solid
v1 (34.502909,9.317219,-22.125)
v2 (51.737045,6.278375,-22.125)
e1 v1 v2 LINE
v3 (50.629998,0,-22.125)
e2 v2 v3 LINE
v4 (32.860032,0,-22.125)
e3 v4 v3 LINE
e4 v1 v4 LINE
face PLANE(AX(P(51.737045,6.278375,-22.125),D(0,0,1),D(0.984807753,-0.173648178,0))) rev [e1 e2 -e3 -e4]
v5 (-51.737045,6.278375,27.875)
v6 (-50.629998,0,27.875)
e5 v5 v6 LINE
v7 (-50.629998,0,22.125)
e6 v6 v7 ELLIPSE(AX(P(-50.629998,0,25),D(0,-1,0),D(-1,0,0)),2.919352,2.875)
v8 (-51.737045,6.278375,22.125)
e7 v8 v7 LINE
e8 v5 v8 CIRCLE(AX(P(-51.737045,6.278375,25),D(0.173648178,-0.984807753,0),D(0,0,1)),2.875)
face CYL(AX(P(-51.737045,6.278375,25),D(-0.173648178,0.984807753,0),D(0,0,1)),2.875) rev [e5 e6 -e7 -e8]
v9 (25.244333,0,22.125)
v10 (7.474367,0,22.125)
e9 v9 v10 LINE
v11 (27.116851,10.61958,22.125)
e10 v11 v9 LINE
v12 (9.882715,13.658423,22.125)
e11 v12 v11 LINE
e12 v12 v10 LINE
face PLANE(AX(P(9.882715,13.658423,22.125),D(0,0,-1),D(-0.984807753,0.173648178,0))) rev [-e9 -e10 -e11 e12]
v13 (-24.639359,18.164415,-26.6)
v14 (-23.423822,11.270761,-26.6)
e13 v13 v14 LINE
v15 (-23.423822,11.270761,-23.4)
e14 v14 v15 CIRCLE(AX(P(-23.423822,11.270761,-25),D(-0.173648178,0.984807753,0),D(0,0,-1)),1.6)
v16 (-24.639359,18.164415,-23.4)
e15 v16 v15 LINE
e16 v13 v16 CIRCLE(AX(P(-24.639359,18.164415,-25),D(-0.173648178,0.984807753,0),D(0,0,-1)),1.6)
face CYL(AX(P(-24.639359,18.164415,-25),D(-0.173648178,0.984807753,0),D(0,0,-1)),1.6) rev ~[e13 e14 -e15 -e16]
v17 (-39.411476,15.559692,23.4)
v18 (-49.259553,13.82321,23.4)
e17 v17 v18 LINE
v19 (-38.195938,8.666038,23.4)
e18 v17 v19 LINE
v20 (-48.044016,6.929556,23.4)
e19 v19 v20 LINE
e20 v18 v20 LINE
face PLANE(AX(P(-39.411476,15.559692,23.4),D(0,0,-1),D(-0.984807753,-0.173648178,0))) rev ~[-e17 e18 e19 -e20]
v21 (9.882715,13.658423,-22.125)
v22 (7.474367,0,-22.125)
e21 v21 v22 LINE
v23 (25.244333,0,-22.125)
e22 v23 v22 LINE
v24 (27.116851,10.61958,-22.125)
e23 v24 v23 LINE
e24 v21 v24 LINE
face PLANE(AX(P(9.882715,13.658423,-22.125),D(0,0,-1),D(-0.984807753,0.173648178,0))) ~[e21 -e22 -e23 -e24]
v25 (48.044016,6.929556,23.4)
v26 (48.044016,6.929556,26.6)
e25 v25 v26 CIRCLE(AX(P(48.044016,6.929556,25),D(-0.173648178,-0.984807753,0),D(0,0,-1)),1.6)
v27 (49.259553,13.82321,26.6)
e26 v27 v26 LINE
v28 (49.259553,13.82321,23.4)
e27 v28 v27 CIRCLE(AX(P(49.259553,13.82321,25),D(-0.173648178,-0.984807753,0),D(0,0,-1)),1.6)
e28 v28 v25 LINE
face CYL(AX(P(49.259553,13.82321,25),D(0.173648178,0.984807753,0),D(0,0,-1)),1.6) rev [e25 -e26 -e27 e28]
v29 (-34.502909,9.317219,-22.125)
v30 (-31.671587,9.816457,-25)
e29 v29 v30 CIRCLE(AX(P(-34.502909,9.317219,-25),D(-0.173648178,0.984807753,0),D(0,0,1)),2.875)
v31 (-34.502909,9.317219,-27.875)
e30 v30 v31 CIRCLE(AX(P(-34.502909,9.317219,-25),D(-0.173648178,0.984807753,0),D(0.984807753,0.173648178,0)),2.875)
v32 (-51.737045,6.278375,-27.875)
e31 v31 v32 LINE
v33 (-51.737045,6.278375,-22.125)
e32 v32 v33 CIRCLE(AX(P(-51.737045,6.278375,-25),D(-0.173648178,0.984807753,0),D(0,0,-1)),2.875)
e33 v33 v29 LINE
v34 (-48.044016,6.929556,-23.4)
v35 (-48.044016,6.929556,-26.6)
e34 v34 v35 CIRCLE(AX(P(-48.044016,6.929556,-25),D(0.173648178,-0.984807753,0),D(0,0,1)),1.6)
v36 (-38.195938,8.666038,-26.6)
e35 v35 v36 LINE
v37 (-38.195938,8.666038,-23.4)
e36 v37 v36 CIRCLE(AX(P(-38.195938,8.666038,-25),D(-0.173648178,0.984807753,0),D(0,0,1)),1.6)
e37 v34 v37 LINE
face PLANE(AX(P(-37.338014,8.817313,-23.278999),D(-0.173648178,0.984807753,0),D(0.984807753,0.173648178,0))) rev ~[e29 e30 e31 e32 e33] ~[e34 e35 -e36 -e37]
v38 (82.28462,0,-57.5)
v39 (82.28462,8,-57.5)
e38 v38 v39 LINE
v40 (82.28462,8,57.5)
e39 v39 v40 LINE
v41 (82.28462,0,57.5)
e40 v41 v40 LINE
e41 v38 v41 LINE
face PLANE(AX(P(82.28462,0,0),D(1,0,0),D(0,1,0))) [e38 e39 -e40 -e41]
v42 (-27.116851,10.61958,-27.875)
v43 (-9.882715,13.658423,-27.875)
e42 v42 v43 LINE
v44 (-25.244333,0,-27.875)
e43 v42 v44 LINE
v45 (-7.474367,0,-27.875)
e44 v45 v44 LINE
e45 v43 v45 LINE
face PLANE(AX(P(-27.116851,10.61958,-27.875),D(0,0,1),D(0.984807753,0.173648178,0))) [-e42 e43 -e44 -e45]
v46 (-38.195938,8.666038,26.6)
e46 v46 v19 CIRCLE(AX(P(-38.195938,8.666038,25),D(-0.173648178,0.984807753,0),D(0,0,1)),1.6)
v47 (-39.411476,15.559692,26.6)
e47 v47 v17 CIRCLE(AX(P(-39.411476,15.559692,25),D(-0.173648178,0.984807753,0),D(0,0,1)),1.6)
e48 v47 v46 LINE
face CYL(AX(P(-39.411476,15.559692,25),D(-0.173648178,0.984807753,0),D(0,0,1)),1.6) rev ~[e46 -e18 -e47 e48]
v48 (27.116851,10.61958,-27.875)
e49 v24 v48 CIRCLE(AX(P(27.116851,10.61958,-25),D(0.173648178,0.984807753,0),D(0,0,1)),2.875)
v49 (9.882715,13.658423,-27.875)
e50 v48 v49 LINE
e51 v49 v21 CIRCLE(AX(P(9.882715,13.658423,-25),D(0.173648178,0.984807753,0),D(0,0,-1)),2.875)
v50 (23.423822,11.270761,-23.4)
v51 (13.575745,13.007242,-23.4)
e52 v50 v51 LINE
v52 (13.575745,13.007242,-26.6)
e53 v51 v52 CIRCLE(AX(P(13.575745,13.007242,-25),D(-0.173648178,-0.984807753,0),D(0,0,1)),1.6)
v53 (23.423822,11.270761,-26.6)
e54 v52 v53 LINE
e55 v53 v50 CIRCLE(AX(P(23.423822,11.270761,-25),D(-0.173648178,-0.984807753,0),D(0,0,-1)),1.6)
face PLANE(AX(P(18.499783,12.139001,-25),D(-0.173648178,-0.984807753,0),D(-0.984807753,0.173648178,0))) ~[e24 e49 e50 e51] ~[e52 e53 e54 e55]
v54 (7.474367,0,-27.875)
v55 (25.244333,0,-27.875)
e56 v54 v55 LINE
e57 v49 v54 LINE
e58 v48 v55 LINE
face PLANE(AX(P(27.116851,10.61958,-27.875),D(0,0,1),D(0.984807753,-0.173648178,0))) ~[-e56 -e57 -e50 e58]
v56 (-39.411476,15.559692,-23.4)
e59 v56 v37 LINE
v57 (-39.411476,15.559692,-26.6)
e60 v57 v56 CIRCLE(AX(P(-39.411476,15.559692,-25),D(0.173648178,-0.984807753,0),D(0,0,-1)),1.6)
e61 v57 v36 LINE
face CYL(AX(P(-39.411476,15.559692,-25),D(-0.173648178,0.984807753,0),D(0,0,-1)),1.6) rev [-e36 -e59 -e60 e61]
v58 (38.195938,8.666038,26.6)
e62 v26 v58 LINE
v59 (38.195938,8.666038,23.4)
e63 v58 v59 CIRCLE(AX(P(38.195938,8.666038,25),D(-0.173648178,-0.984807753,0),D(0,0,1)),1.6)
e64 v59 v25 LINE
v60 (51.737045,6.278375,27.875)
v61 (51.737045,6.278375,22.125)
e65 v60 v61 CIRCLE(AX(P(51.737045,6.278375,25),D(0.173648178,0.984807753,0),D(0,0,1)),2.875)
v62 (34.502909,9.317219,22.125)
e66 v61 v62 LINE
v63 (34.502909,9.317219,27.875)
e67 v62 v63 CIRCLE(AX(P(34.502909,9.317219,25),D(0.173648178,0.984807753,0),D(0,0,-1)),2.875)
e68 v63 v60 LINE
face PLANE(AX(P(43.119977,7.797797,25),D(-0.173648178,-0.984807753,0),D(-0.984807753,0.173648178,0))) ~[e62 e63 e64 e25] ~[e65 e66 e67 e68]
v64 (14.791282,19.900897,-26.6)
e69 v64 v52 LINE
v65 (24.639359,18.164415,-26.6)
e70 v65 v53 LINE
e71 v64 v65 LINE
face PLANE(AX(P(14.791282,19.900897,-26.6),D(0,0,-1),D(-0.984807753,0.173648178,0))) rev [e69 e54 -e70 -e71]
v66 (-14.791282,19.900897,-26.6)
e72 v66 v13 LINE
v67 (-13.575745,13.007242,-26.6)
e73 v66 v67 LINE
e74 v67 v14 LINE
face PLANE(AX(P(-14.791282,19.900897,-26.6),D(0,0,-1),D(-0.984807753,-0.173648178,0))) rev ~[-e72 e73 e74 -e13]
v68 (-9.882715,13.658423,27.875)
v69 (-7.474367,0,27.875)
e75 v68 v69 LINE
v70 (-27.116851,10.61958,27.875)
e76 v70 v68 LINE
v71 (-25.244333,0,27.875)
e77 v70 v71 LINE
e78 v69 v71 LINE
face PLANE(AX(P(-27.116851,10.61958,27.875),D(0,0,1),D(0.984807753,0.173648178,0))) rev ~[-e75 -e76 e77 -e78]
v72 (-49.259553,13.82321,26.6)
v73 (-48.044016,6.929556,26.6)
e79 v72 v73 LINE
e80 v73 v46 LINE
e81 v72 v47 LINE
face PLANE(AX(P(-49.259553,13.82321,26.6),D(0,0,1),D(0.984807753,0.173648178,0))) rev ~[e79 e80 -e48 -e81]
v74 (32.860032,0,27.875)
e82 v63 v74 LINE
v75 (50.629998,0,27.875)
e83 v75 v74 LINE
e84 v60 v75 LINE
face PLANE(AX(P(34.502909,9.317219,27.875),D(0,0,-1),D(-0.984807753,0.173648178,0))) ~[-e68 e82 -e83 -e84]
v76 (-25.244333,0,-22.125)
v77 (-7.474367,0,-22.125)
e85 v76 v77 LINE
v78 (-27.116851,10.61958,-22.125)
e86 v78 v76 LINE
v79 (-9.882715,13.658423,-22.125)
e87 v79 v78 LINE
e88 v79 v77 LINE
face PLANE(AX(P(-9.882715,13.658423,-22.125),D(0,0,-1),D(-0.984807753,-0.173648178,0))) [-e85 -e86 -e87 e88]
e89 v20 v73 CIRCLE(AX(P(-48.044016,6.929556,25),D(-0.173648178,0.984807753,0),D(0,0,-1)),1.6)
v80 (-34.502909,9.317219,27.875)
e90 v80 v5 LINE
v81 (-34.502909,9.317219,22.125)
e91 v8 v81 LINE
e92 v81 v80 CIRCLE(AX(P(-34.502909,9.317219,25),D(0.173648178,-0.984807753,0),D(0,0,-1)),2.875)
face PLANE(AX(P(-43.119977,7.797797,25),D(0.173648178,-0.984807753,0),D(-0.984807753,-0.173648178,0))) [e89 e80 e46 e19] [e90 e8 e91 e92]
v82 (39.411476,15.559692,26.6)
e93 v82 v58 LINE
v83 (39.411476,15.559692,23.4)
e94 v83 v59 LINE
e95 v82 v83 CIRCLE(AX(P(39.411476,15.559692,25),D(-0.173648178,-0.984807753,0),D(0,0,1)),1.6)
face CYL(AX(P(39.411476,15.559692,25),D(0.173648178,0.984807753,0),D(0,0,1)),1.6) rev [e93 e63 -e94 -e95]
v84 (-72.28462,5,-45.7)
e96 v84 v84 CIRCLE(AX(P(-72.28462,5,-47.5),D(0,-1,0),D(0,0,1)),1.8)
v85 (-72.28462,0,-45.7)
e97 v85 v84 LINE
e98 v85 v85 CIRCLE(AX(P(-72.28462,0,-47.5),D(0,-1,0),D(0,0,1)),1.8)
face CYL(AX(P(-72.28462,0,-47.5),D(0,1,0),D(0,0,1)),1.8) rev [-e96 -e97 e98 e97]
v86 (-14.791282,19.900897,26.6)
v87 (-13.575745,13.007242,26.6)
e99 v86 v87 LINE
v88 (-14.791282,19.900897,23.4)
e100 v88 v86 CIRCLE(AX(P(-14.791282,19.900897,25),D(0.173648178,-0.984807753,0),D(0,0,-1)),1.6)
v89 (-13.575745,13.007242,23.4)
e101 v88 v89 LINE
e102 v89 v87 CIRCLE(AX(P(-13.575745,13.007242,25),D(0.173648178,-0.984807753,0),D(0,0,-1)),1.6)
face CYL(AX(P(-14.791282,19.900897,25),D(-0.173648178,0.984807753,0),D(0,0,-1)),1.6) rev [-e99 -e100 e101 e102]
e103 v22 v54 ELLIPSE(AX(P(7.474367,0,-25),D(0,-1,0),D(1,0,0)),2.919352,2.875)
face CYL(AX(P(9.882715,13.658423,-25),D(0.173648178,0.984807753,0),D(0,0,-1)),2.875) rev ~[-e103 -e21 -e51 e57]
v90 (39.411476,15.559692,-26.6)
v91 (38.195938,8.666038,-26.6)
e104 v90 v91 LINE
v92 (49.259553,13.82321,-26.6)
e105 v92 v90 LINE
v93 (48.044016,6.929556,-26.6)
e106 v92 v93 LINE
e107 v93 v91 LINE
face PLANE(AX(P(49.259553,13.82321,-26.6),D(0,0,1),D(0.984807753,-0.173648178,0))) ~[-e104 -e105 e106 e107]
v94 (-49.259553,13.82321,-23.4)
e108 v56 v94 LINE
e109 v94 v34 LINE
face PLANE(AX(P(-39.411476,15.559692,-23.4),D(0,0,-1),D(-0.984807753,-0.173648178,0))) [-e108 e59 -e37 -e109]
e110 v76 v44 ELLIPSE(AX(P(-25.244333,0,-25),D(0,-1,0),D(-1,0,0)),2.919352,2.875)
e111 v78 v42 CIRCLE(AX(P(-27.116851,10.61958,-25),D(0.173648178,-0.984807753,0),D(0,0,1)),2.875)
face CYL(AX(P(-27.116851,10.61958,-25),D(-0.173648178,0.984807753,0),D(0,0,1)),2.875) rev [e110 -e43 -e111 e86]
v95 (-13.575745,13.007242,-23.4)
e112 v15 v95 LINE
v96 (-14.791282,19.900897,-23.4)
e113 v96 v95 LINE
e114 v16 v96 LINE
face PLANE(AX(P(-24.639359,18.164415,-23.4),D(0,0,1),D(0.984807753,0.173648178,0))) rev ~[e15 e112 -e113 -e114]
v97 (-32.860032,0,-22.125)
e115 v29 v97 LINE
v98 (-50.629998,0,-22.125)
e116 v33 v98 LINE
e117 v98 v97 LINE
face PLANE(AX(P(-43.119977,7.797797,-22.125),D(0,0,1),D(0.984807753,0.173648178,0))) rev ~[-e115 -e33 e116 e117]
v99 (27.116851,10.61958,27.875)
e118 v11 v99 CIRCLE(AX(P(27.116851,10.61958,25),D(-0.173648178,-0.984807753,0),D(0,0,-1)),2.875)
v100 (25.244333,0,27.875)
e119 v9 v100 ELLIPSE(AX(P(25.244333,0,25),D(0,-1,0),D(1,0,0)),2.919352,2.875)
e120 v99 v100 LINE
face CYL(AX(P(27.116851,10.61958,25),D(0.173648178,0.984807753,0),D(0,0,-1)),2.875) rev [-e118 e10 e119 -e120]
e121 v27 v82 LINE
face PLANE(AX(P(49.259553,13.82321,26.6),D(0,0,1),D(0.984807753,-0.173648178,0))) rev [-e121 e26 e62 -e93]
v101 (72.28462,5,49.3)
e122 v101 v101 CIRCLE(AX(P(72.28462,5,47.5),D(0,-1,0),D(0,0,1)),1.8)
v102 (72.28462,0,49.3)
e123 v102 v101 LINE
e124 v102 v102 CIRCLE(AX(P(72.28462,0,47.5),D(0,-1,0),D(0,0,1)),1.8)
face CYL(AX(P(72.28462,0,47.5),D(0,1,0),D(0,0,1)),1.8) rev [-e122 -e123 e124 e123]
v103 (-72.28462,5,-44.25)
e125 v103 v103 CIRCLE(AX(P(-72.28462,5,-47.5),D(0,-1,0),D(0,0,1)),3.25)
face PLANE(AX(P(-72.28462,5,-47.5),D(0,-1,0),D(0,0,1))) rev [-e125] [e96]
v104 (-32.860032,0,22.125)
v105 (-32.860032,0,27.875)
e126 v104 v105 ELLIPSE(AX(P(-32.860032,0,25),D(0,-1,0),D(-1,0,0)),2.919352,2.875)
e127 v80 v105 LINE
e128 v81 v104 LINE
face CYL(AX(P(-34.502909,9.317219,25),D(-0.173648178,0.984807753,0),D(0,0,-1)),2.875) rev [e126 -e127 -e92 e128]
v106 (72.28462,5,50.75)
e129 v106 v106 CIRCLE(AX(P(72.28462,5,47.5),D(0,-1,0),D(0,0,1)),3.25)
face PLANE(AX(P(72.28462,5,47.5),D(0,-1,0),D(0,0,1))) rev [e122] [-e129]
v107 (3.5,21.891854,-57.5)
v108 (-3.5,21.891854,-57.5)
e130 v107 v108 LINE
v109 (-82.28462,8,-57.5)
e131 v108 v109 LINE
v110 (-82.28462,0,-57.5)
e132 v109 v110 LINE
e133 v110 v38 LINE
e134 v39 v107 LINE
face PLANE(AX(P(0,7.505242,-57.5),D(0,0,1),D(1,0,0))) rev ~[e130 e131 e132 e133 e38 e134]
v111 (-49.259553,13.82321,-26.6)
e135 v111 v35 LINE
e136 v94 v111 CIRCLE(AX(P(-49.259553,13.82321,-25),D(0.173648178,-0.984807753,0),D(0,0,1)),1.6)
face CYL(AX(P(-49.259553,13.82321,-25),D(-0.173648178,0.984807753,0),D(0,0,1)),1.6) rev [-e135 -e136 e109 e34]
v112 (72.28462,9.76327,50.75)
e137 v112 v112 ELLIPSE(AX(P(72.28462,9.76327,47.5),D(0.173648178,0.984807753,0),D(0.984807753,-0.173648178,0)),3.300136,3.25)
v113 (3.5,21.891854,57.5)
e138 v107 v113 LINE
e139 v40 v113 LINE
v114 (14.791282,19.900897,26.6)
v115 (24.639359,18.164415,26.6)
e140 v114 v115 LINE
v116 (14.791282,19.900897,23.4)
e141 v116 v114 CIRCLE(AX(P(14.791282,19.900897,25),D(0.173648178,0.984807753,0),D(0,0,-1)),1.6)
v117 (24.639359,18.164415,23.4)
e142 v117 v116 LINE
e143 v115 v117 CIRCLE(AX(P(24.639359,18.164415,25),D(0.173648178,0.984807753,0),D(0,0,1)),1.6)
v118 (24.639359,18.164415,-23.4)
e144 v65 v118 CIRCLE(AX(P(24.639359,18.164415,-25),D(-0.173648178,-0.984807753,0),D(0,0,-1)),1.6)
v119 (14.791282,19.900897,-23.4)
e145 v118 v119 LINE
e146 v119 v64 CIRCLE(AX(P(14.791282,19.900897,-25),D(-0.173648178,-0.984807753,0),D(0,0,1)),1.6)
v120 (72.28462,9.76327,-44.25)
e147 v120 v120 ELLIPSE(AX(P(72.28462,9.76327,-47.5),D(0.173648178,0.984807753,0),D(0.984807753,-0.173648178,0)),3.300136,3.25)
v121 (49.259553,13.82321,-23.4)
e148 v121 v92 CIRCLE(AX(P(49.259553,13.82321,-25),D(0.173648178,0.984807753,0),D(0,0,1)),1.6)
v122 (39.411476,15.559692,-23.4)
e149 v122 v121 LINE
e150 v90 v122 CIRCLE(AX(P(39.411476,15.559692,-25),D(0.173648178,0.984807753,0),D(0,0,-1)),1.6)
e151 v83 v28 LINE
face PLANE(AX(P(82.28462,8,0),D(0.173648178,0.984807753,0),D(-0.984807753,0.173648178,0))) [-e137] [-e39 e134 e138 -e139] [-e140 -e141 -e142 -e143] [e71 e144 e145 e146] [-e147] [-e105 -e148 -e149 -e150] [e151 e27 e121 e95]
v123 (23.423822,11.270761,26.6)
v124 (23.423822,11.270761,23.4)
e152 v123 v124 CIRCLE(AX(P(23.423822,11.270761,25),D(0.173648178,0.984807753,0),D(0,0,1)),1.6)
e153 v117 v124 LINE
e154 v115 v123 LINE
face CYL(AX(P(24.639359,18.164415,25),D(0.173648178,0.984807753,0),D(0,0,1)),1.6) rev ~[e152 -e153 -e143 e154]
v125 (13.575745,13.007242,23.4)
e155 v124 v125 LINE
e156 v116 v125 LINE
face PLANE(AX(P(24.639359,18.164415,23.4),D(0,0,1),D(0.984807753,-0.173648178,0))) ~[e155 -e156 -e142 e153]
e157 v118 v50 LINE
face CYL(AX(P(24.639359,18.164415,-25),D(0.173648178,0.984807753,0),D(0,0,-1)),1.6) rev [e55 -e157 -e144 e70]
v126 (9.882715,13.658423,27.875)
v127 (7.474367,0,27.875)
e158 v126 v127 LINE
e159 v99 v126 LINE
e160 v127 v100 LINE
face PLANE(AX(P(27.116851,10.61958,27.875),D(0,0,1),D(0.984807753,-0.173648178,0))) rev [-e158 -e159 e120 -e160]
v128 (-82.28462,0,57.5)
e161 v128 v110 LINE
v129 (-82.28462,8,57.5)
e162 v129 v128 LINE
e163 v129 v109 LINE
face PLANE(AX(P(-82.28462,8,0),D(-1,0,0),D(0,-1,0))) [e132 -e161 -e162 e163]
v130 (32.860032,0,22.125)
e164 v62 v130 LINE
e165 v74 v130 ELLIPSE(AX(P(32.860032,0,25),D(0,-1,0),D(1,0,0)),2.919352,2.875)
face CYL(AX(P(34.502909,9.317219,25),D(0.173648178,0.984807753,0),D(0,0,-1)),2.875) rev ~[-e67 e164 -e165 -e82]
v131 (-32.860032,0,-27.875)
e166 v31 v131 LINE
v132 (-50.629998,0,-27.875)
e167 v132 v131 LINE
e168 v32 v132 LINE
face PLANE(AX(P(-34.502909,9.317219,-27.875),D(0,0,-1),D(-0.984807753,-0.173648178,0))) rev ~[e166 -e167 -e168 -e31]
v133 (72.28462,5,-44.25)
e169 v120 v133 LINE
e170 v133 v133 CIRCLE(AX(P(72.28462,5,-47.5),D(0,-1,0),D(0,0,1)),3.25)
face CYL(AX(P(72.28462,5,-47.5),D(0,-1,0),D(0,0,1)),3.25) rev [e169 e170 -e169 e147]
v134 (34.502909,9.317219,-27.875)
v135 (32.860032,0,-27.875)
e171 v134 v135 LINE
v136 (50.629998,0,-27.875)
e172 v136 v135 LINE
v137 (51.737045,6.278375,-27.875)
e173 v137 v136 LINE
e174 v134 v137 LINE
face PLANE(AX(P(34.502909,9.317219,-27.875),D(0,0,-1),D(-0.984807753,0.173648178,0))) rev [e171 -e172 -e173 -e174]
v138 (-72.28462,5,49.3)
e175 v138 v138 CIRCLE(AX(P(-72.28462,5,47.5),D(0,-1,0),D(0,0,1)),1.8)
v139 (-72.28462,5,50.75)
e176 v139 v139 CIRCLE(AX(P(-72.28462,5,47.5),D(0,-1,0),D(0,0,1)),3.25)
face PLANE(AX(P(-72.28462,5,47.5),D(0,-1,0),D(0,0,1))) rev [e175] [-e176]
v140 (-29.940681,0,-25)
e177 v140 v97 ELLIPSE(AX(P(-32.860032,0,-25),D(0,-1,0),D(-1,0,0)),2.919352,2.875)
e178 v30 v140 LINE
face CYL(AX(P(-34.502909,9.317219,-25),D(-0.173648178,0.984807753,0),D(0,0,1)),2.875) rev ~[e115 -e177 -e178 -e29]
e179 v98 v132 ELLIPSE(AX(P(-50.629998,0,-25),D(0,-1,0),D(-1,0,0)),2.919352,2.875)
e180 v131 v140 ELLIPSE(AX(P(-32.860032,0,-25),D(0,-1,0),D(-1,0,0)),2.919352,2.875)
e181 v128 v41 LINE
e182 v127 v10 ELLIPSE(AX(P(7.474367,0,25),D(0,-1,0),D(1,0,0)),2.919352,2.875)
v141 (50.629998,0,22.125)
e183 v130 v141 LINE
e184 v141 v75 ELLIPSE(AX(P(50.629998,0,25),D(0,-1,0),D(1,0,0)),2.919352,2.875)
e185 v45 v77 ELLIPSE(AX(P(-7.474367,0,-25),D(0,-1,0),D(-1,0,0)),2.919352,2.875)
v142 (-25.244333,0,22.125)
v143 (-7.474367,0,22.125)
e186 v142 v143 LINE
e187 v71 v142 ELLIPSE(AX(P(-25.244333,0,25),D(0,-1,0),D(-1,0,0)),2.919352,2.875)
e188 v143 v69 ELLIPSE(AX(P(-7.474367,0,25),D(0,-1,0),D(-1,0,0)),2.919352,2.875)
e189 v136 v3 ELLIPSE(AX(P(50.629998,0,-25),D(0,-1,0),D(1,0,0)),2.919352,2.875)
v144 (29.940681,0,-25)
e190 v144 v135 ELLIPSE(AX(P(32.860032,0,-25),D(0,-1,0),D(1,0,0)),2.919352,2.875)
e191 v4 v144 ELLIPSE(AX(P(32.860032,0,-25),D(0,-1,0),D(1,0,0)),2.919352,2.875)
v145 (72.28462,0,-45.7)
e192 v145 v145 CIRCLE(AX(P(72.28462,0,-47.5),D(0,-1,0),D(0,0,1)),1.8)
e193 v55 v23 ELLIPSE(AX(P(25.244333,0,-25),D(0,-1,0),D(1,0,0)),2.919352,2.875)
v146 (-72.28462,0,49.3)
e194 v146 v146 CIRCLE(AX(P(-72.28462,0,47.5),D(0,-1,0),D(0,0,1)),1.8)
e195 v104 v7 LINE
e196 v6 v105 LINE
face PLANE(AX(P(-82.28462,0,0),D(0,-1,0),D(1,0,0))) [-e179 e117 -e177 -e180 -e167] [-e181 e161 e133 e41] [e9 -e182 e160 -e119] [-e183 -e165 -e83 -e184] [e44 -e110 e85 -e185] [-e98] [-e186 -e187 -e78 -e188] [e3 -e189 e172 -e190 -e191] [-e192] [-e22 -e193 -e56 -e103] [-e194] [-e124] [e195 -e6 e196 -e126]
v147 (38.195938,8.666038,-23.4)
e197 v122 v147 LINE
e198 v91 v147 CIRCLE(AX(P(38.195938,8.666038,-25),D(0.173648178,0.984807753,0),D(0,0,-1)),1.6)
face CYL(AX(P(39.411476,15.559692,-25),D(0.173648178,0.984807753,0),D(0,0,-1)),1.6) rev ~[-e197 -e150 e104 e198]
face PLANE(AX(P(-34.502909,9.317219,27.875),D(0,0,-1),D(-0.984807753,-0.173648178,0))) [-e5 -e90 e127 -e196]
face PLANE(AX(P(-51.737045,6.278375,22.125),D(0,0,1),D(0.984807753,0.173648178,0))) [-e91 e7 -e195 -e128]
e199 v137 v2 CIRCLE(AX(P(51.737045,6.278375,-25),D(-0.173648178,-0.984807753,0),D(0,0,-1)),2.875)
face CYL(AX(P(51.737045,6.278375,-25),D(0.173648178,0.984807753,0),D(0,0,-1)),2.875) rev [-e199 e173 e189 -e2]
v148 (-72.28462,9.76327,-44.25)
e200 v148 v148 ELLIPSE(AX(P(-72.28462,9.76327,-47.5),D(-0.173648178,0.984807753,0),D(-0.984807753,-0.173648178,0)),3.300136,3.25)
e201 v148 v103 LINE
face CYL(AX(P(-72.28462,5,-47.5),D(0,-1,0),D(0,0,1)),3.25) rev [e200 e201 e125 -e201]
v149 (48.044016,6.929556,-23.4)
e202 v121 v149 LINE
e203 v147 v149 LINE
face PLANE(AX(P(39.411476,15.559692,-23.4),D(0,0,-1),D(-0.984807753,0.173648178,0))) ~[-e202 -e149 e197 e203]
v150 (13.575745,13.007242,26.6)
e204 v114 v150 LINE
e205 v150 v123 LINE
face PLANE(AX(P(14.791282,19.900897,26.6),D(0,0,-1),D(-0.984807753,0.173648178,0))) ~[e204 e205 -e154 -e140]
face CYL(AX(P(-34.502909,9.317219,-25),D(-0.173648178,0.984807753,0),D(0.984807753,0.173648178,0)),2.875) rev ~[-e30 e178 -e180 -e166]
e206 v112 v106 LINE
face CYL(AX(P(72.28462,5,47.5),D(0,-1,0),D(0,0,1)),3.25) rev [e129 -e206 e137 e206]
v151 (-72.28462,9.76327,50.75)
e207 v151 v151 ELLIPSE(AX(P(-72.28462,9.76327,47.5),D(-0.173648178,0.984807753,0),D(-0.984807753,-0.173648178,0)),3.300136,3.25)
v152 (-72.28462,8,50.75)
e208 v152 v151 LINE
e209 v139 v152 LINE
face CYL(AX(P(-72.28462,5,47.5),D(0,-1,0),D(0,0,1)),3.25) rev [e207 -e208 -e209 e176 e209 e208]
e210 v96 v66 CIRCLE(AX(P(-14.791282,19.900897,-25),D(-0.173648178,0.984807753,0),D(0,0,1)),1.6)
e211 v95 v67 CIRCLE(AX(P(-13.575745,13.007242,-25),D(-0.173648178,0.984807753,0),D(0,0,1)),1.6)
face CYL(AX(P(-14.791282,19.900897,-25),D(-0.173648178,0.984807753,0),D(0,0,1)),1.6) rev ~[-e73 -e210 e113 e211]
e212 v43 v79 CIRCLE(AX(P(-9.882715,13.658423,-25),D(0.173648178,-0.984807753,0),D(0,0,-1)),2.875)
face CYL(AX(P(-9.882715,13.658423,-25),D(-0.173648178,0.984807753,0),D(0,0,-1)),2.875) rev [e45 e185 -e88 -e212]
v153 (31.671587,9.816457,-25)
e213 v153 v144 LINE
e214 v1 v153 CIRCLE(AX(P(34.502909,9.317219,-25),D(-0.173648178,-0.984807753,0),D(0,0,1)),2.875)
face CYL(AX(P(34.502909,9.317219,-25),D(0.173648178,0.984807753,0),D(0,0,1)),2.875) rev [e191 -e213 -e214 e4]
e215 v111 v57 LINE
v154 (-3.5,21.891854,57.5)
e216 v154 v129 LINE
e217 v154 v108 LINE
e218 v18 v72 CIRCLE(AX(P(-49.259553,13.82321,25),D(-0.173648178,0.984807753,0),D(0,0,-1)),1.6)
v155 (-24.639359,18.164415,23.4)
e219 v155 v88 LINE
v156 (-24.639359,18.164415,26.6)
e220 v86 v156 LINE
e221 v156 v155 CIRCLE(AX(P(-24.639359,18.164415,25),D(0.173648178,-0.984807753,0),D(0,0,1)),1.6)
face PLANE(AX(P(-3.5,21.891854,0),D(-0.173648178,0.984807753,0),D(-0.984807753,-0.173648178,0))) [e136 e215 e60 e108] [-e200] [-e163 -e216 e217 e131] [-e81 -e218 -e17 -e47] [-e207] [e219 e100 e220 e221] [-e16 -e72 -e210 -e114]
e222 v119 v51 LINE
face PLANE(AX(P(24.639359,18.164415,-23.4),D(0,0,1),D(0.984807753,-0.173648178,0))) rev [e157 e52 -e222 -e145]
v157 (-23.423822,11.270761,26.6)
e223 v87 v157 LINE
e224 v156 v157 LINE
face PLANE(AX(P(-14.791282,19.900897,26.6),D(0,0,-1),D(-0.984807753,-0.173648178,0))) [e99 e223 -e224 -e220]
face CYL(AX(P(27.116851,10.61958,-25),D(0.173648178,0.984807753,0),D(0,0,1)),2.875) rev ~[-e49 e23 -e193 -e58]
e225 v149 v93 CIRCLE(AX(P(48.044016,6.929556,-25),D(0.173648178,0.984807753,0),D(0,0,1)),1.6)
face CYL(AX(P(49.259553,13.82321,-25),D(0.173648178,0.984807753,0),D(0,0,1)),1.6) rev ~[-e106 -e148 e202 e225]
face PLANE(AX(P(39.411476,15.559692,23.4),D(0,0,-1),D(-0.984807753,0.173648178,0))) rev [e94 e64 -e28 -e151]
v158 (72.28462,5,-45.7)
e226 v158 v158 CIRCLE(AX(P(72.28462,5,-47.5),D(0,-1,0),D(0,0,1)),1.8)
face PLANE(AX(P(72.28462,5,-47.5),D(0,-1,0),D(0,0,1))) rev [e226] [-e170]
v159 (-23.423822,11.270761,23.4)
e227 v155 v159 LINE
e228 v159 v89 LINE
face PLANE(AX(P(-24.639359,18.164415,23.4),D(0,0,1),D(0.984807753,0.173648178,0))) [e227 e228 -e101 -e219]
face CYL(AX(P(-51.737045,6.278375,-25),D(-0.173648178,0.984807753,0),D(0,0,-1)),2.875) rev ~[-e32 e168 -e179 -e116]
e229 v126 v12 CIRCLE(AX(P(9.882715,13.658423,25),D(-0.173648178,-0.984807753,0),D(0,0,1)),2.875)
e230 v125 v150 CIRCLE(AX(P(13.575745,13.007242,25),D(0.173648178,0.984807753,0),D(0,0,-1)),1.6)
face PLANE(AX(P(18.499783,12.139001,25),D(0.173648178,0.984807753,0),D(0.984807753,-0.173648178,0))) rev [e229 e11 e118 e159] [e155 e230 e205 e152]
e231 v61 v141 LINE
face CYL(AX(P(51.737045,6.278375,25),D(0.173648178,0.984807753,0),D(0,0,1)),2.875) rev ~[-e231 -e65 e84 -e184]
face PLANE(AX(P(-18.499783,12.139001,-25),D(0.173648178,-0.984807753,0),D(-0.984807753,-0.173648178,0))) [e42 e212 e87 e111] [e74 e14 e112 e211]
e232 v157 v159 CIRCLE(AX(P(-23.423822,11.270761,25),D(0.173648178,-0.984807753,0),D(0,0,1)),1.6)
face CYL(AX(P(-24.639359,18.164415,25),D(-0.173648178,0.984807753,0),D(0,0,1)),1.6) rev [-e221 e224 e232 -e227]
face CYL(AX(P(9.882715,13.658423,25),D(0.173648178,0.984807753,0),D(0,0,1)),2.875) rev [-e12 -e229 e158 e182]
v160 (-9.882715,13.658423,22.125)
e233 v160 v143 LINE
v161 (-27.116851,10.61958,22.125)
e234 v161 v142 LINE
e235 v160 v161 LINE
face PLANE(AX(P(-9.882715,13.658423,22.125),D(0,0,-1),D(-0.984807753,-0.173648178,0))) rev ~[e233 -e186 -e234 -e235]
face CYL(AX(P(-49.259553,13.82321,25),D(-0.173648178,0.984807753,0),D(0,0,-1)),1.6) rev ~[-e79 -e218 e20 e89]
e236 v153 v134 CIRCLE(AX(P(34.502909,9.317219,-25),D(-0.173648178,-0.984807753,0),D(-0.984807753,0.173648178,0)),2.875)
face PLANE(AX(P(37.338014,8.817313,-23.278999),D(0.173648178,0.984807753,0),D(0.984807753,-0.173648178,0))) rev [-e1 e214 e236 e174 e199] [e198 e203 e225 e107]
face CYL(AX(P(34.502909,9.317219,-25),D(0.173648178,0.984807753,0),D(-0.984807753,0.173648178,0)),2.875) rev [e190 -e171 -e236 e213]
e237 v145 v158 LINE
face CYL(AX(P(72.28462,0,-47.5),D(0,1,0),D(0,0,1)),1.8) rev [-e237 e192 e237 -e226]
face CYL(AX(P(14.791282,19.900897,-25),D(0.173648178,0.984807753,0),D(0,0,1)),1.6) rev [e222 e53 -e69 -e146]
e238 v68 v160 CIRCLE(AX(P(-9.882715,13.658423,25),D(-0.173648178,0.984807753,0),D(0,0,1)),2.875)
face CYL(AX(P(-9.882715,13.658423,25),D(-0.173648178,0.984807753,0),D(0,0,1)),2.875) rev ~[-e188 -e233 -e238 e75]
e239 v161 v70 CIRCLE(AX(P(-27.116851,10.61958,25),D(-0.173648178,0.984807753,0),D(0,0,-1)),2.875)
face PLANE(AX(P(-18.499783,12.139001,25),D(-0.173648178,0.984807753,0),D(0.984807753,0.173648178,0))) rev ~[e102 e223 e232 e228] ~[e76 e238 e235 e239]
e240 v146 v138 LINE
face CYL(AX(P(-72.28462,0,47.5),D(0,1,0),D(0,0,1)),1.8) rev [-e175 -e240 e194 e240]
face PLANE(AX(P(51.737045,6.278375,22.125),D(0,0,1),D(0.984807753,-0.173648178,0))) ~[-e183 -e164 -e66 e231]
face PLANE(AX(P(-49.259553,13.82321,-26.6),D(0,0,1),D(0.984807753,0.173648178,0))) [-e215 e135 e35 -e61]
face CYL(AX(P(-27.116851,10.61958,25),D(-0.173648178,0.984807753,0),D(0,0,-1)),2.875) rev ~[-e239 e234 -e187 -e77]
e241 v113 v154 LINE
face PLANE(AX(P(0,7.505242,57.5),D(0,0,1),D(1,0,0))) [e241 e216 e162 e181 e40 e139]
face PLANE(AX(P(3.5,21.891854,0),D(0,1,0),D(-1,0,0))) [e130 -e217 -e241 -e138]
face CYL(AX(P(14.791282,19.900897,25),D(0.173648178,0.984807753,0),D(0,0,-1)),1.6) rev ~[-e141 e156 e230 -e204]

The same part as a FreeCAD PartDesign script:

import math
import FreeCAD as App
import Part
import Sketcher

V = App.Vector
Q = App.Units.Quantity

doc = App.newDocument("Part")
body = doc.addObject("PartDesign::Body", "Body")

# Sketch on XY plane
sketch1 = doc.addObject("Sketcher::SketchObject", "Sketch")
body.addObject(sketch1)
sketch1.AttachmentSupport = (doc.XY_Plane, [""])
sketch1.MapMode = "FlatFace"
sketch1.addGeometry(Part.LineSegment(V(-82, 0, 0), V(82, 0, 0)), False)
sketch1.addGeometry(Part.LineSegment(V(82, 0, 0), V(82, 8, 0)), False)
sketch1.addGeometry(Part.LineSegment(V(82, 8, 0), V(4, 22, 0)), False)
sketch1.addGeometry(Part.LineSegment(V(4, 22, 0), V(-4, 22, 0)), False)
sketch1.addGeometry(Part.LineSegment(V(-4, 22, 0), V(-82, 8, 0)), False)
sketch1.addGeometry(Part.LineSegment(V(-82, 8, 0), V(-82, 0, 0)), False)
sketch1.addConstraint(Sketcher.Constraint("Coincident", 0, 2, 1, 1))
sketch1.addConstraint(Sketcher.Constraint("Coincident", 1, 2, 2, 1))
sketch1.addConstraint(Sketcher.Constraint("Coincident", 2, 2, 3, 1))
sketch1.addConstraint(Sketcher.Constraint("Coincident", 3, 2, 4, 1))
sketch1.addConstraint(Sketcher.Constraint("Coincident", 4, 2, 5, 1))
sketch1.addConstraint(Sketcher.Constraint("Coincident", 5, 2, 0, 1))
sketch1.addConstraint(Sketcher.Constraint("Horizontal", 0))
sketch1.addConstraint(Sketcher.Constraint("Vertical", 1))
sketch1.addConstraint(Sketcher.Constraint("Horizontal", 3))
sketch1.addConstraint(Sketcher.Constraint("Vertical", 5))
sketch1.addConstraint(Sketcher.Constraint("Symmetric", 0, 2, 5, 2, -1, 1))
sketch1.addConstraint(Sketcher.Constraint("Horizontal", 1, 2, 4, 2))
sketch1.addConstraint(Sketcher.Constraint("Equal", 2, 4))
sketch1.addConstraint(Sketcher.Constraint("DistanceX", 3, 2, 3, 1, 7.0))
sketch1.addConstraint(Sketcher.Constraint("DistanceY", 1, 1, 1, 2, 8.0))
sketch1.addConstraint(Sketcher.Constraint("Angle", 2, Q("170 deg")))
sketch1.addConstraint(Sketcher.Constraint("Distance", 2, 80.0))
pad1 = doc.addObject("PartDesign::Pad", "Pad")
body.addObject(pad1)
pad1.Profile = sketch1
pad1.Length = 115
pad1.Midplane = True

# Sketch on an angled plane
sketch2 = doc.addObject("Sketcher::SketchObject", "Sketch001")
body.addObject(sketch2)
sketch2.Placement = App.Placement(V(-3.849265, 21.830269, 0), App.Rotation(V(0.984807753, 0.173648178, 0), V(0, 0, -1), V(-0.173648178, 0.984807753, 0), "ZXY"))
sketch2.addGeometry(Part.LineSegment(V(-36.1, 26.6, 0), V(-46.1, 26.6, 0)), False)
sketch2.addGeometry(Part.ArcOfCircle(Part.Circle(V(-46.1, 25, 0), V(0, 0, 1), 1.6), math.radians(90), math.radians(270)), False)
sketch2.addGeometry(Part.LineSegment(V(-46.1, 23.4, 0), V(-36.1, 23.4, 0)), False)
sketch2.addGeometry(Part.ArcOfCircle(Part.Circle(V(-36.1, 25, 0), V(0, 0, 1), 1.6), math.radians(-90), math.radians(90)), False)
sketch2.addGeometry(Part.LineSegment(V(-21.1, -26.6, 0), V(-11.1, -26.6, 0)), False)
sketch2.addGeometry(Part.ArcOfCircle(Part.Circle(V(-11.1, -25, 0), V(0, 0, 1), 1.6), math.radians(-90), math.radians(90)), False)
sketch2.addGeometry(Part.LineSegment(V(-11.1, -23.4, 0), V(-21.1, -23.4, 0)), False)
sketch2.addGeometry(Part.ArcOfCircle(Part.Circle(V(-21.1, -25, 0), V(0, 0, 1), 1.6), math.radians(90), math.radians(270)), False)
sketch2.addGeometry(Part.LineSegment(V(-11.1, 26.6, 0), V(-21.1, 26.6, 0)), False)
sketch2.addGeometry(Part.ArcOfCircle(Part.Circle(V(-21.1, 25, 0), V(0, 0, 1), 1.6), math.radians(90), math.radians(270)), False)
sketch2.addGeometry(Part.LineSegment(V(-21.1, 23.4, 0), V(-11.1, 23.4, 0)), False)
sketch2.addGeometry(Part.ArcOfCircle(Part.Circle(V(-11.1, 25, 0), V(0, 0, 1), 1.6), math.radians(-90), math.radians(90)), False)
sketch2.addGeometry(Part.LineSegment(V(-46.1, -26.6, 0), V(-36.1, -26.6, 0)), False)
sketch2.addGeometry(Part.ArcOfCircle(Part.Circle(V(-36.1, -25, 0), V(0, 0, 1), 1.6), math.radians(-90), math.radians(90)), False)
sketch2.addGeometry(Part.LineSegment(V(-36.1, -23.4, 0), V(-46.1, -23.4, 0)), False)
sketch2.addGeometry(Part.ArcOfCircle(Part.Circle(V(-46.1, -25, 0), V(0, 0, 1), 1.6), math.radians(90), math.radians(270)), False)
sketch2.addConstraint(Sketcher.Constraint("Tangent", 0, 2, 1, 1))
sketch2.addConstraint(Sketcher.Constraint("Tangent", 1, 2, 2, 1))
sketch2.addConstraint(Sketcher.Constraint("Tangent", 2, 2, 3, 1))
sketch2.addConstraint(Sketcher.Constraint("Tangent", 3, 2, 0, 1))
sketch2.addConstraint(Sketcher.Constraint("Tangent", 4, 2, 5, 1))
sketch2.addConstraint(Sketcher.Constraint("Tangent", 5, 2, 6, 1))
sketch2.addConstraint(Sketcher.Constraint("Tangent", 6, 2, 7, 1))
sketch2.addConstraint(Sketcher.Constraint("Tangent", 7, 2, 4, 1))
sketch2.addConstraint(Sketcher.Constraint("Tangent", 8, 2, 9, 1))
sketch2.addConstraint(Sketcher.Constraint("Tangent", 9, 2, 10, 1))
sketch2.addConstraint(Sketcher.Constraint("Tangent", 10, 2, 11, 1))
sketch2.addConstraint(Sketcher.Constraint("Tangent", 11, 2, 8, 1))
sketch2.addConstraint(Sketcher.Constraint("Tangent", 12, 2, 13, 1))
sketch2.addConstraint(Sketcher.Constraint("Tangent", 13, 2, 14, 1))
sketch2.addConstraint(Sketcher.Constraint("Tangent", 14, 2, 15, 1))
sketch2.addConstraint(Sketcher.Constraint("Tangent", 15, 2, 12, 1))
sketch2.addConstraint(Sketcher.Constraint("Horizontal", 0))
sketch2.addConstraint(Sketcher.Constraint("Horizontal", 2))
sketch2.addConstraint(Sketcher.Constraint("Horizontal", 4))
sketch2.addConstraint(Sketcher.Constraint("Horizontal", 6))
sketch2.addConstraint(Sketcher.Constraint("Horizontal", 8))
sketch2.addConstraint(Sketcher.Constraint("Horizontal", 10))
sketch2.addConstraint(Sketcher.Constraint("Horizontal", 12))
sketch2.addConstraint(Sketcher.Constraint("Horizontal", 14))
sketch2.addConstraint(Sketcher.Constraint("Equal", 3, 5))
sketch2.addConstraint(Sketcher.Constraint("Equal", 7, 9))
sketch2.addConstraint(Sketcher.Constraint("Equal", 11, 13))
sketch2.addConstraint(Sketcher.Constraint("Symmetric", 7, 3, 9, 3, -1))
sketch2.addConstraint(Sketcher.Constraint("Symmetric", 3, 3, 13, 3, -1))
sketch2.addConstraint(Sketcher.Constraint("Horizontal", 3, 3, 9, 3))
sketch2.addConstraint(Sketcher.Constraint("Vertical", 5, 3, 11, 3))
sketch2.addConstraint(Sketcher.Constraint("Vertical", 1, 3, 15, 3))
sketch2.addConstraint(Sketcher.Constraint("Equal", 2, 4))
sketch2.addConstraint(Sketcher.Constraint("Radius", 1, 1.6))
sketch2.addConstraint(Sketcher.Constraint("DistanceX", 0, 2, 0, 1, 10.0))
sketch2.addConstraint(Sketcher.Constraint("DistanceY", -1, 1, 1, 3, 25.0))
sketch2.addConstraint(Sketcher.Constraint("DistanceX", 3, 3, 5, 3, 25.0))
sketch2.addConstraint(Sketcher.Constraint("DistanceX", 1, 3, -1, 1, 46.110815))
pocket1 = doc.addObject("PartDesign::Pocket", "Pocket")
body.addObject(pocket1)
pocket1.Profile = sketch2
pocket1.Length = 7

# Sketch on an angled plane
sketch3 = doc.addObject("Sketcher::SketchObject", "Sketch002")
body.addObject(sketch3)
sketch3.Placement = App.Placement(V(-2.633728, 14.936615, 0), App.Rotation(V(0.984807753, 0.173648178, 0), V(0, 0, -1), V(-0.173648178, 0.984807753, 0), "ZXY"))
sketch3.addGeometry(Part.ArcOfCircle(Part.Circle(V(-32.4, 25, 0), V(0, 0, 1), 2.9), math.radians(-90), math.radians(0)), False)
sketch3.addGeometry(Part.ArcOfCircle(Part.Circle(V(-32.4, 25, 0), V(0, 0, 1), 2.9), math.radians(0), math.radians(90)), False)
sketch3.addGeometry(Part.LineSegment(V(-32.4, 27.9, 0), V(-49.9, 27.9, 0)), False)
sketch3.addGeometry(Part.ArcOfCircle(Part.Circle(V(-49.9, 25, 0), V(0, 0, 1), 2.9), math.radians(90), math.radians(270)), False)
sketch3.addGeometry(Part.LineSegment(V(-49.9, 22.1, 0), V(-32.4, 22.1, 0)), False)
sketch3.addGeometry(Part.ArcOfCircle(Part.Circle(V(-24.9, 25, 0), V(0, 0, 1), 2.9), math.radians(90), math.radians(270)), False)
sketch3.addGeometry(Part.LineSegment(V(-24.9, 22.1, 0), V(-7.4, 22.1, 0)), False)
sketch3.addGeometry(Part.ArcOfCircle(Part.Circle(V(-7.4, 25, 0), V(0, 0, 1), 2.9), math.radians(-90), math.radians(90)), False)
sketch3.addGeometry(Part.LineSegment(V(-7.4, 27.9, 0), V(-24.9, 27.9, 0)), False)
sketch3.addGeometry(Part.ArcOfCircle(Part.Circle(V(-32.4, -25, 0), V(0, 0, 1), 2.9), math.radians(-90), math.radians(90)), False)
sketch3.addGeometry(Part.LineSegment(V(-32.4, -22.1, 0), V(-49.9, -22.1, 0)), False)
sketch3.addGeometry(Part.ArcOfCircle(Part.Circle(V(-49.9, -25, 0), V(0, 0, 1), 2.9), math.radians(90), math.radians(270)), False)
sketch3.addGeometry(Part.LineSegment(V(-49.9, -27.9, 0), V(-32.4, -27.9, 0)), False)
sketch3.addGeometry(Part.LineSegment(V(-7.4, -22.1, 0), V(-24.9, -22.1, 0)), False)
sketch3.addGeometry(Part.ArcOfCircle(Part.Circle(V(-24.9, -25, 0), V(0, 0, 1), 2.9), math.radians(90), math.radians(270)), False)
sketch3.addGeometry(Part.LineSegment(V(-24.9, -27.9, 0), V(-7.4, -27.9, 0)), False)
sketch3.addGeometry(Part.ArcOfCircle(Part.Circle(V(-7.4, -25, 0), V(0, 0, 1), 2.9), math.radians(-90), math.radians(90)), False)
sketch3.addConstraint(Sketcher.Constraint("Tangent", 0, 2, 1, 1))
sketch3.addConstraint(Sketcher.Constraint("Tangent", 1, 2, 2, 1))
sketch3.addConstraint(Sketcher.Constraint("Tangent", 2, 2, 3, 1))
sketch3.addConstraint(Sketcher.Constraint("Tangent", 3, 2, 4, 1))
sketch3.addConstraint(Sketcher.Constraint("Tangent", 4, 2, 0, 1))
sketch3.addConstraint(Sketcher.Constraint("Tangent", 5, 2, 6, 1))
sketch3.addConstraint(Sketcher.Constraint("Tangent", 6, 2, 7, 1))
sketch3.addConstraint(Sketcher.Constraint("Tangent", 7, 2, 8, 1))
sketch3.addConstraint(Sketcher.Constraint("Tangent", 8, 2, 5, 1))
sketch3.addConstraint(Sketcher.Constraint("Tangent", 9, 2, 10, 1))
sketch3.addConstraint(Sketcher.Constraint("Tangent", 10, 2, 11, 1))
sketch3.addConstraint(Sketcher.Constraint("Tangent", 11, 2, 12, 1))
sketch3.addConstraint(Sketcher.Constraint("Tangent", 12, 2, 9, 1))
sketch3.addConstraint(Sketcher.Constraint("Tangent", 13, 2, 14, 1))
sketch3.addConstraint(Sketcher.Constraint("Tangent", 14, 2, 15, 1))
sketch3.addConstraint(Sketcher.Constraint("Tangent", 15, 2, 16, 1))
sketch3.addConstraint(Sketcher.Constraint("Tangent", 16, 2, 13, 1))
sketch3.addConstraint(Sketcher.Constraint("Horizontal", 2))
sketch3.addConstraint(Sketcher.Constraint("Horizontal", 4))
sketch3.addConstraint(Sketcher.Constraint("Horizontal", 6))
sketch3.addConstraint(Sketcher.Constraint("Horizontal", 8))
sketch3.addConstraint(Sketcher.Constraint("Horizontal", 10))
sketch3.addConstraint(Sketcher.Constraint("Horizontal", 12))
sketch3.addConstraint(Sketcher.Constraint("Horizontal", 13))
sketch3.addConstraint(Sketcher.Constraint("Horizontal", 15))
sketch3.addConstraint(Sketcher.Constraint("Equal", 0, 1))
sketch3.addConstraint(Sketcher.Constraint("Equal", 3, 5))
sketch3.addConstraint(Sketcher.Constraint("Equal", 7, 9))
sketch3.addConstraint(Sketcher.Constraint("Equal", 11, 14))
sketch3.addConstraint(Sketcher.Constraint("Symmetric", 0, 3, 9, 3, -1))
sketch3.addConstraint(Sketcher.Constraint("Symmetric", 5, 3, 14, 3, -1))
sketch3.addConstraint(Sketcher.Constraint("Horizontal", 3, 3, 5, 3))
sketch3.addConstraint(Sketcher.Constraint("Horizontal", 7, 3, 0, 2))
sketch3.addConstraint(Sketcher.Constraint("Vertical", 3, 3, 11, 3))
sketch3.addConstraint(Sketcher.Constraint("Vertical", 7, 3, 16, 3))
sketch3.addConstraint(Sketcher.Constraint("Equal", 4, 6))
sketch3.addConstraint(Sketcher.Constraint("DistanceX", 2, 2, 2, 1, 17.5))
sketch3.addConstraint(Sketcher.Constraint("DistanceY", -1, 1, 0, 3, 25.0))
sketch3.addConstraint(Sketcher.Constraint("Radius", 0, 2.875))
sketch3.addConstraint(Sketcher.Constraint("DistanceX", 3, 3, 5, 3, 25.0))
sketch3.addConstraint(Sketcher.Constraint("DistanceX", 0, 3, -1, 1, 32.360815))
pocket2 = doc.addObject("PartDesign::Pocket", "Pocket001")
body.addObject(pocket2)
pocket2.Profile = sketch3
pocket2.Length = 99.838825
doc.recompute()

mirrored = doc.addObject("PartDesign::Mirrored", "Mirrored")
body.addObject(mirrored)
mirrored.Originals = [pocket1, pocket2]
mirrored.MirrorPlane = (doc.YZ_Plane, [""])
body.Tip = mirrored

# Sketch on YZ plane
sketch4 = doc.addObject("Sketcher::SketchObject", "Sketch003")
body.addObject(sketch4)
sketch4.AttachmentSupport = (doc.YZ_Plane, [""])
sketch4.MapMode = "FlatFace"
sketch4.AttachmentOffset = App.Placement(V(0, 0, 72.28462), App.Rotation())
sketch4.addGeometry(Part.LineSegment(V(0, -47.5, 0), V(8, -47.5, 0)), False)
sketch4.addGeometry(Part.LineSegment(V(8, -47.5, 0), V(8, -44.2, 0)), False)
sketch4.addGeometry(Part.LineSegment(V(8, -44.2, 0), V(5, -44.2, 0)), False)
sketch4.addGeometry(Part.LineSegment(V(5, -44.2, 0), V(5, -45.7, 0)), False)
sketch4.addGeometry(Part.LineSegment(V(5, -45.7, 0), V(0, -45.7, 0)), False)
sketch4.addGeometry(Part.LineSegment(V(0, -45.7, 0), V(0, -47.5, 0)), False)
sketch4.addGeometry(Part.LineSegment(V(8, -47.5, 0), V(0, -47.5, 0)), True)  # axis
sketch4.addConstraint(Sketcher.Constraint("Coincident", 0, 2, 1, 1))
sketch4.addConstraint(Sketcher.Constraint("Coincident", 1, 2, 2, 1))
sketch4.addConstraint(Sketcher.Constraint("Coincident", 2, 2, 3, 1))
sketch4.addConstraint(Sketcher.Constraint("Coincident", 3, 2, 4, 1))
sketch4.addConstraint(Sketcher.Constraint("Coincident", 4, 2, 5, 1))
sketch4.addConstraint(Sketcher.Constraint("Coincident", 5, 2, 0, 1))
sketch4.addConstraint(Sketcher.Constraint("Horizontal", 0))
sketch4.addConstraint(Sketcher.Constraint("Vertical", 1))
sketch4.addConstraint(Sketcher.Constraint("Horizontal", 2))
sketch4.addConstraint(Sketcher.Constraint("Vertical", 3))
sketch4.addConstraint(Sketcher.Constraint("Horizontal", 4))
sketch4.addConstraint(Sketcher.Constraint("Vertical", 5))
sketch4.addConstraint(Sketcher.Constraint("Horizontal", 6))
sketch4.addConstraint(Sketcher.Constraint("Coincident", 6, 1, 0, 2))
sketch4.addConstraint(Sketcher.Constraint("PointOnObject", 4, 2, -2))
sketch4.addConstraint(Sketcher.Constraint("PointOnObject", 6, 2, -2))
sketch4.addConstraint(Sketcher.Constraint("DistanceX", 0, 1, 0, 2, 8.0))
sketch4.addConstraint(Sketcher.Constraint("DistanceX", 2, 2, 2, 1, 3.0))
sketch4.addConstraint(Sketcher.Constraint("DistanceY", 5, 2, 5, 1, 1.8))
sketch4.addConstraint(Sketcher.Constraint("DistanceY", 1, 1, 1, 2, 3.25))
sketch4.addConstraint(Sketcher.Constraint("DistanceY", 0, 2, -1, 1, 47.5))
groove = doc.addObject("PartDesign::Groove", "Groove")
body.addObject(groove)
groove.Profile = sketch4
groove.ReferenceAxis = (sketch4, ["Axis0"])
groove.Angle = 360
doc.recompute()

linearpattern = doc.addObject("PartDesign::LinearPattern", "LinearPattern")
body.addObject(linearpattern)
linearpattern.Originals = [groove]
linearpattern.Direction = (doc.Z_Axis, [""])
linearpattern.Mode = "offset"
linearpattern.Offset = 95
linearpattern.Occurrences = 2
body.Tip = linearpattern
doc.recompute()

linearpattern2 = doc.addObject("PartDesign::LinearPattern", "LinearPattern001")
body.addObject(linearpattern2)
linearpattern2.Originals = [groove]
linearpattern2.Direction = (doc.X_Axis, [""])
linearpattern2.Mode = "offset"
linearpattern2.Offset = 144.56924
linearpattern2.Occurrences = 2
linearpattern2.Reversed = True
body.Tip = linearpattern2
doc.recompute()

datumline = doc.addObject("PartDesign::Line", "DatumLine")
body.addObject(datumline)
datumline.Placement = App.Placement(V(0, 0, 0), App.Rotation(V(0, 0, 1), V(-0.835712494, 0, 0.549167213)))
linearpattern3 = doc.addObject("PartDesign::LinearPattern", "LinearPattern002")
body.addObject(linearpattern3)
linearpattern3.Originals = [groove]
linearpattern3.Direction = (datumline, [""])
linearpattern3.Mode = "offset"
linearpattern3.Offset = 172.989206
linearpattern3.Occurrences = 2
body.Tip = linearpattern3

# Sketch on XZ plane
sketch5 = doc.addObject("Sketcher::SketchObject", "Sketch004")
body.addObject(sketch5)
sketch5.AttachmentSupport = (doc.XZ_Plane, [""])
sketch5.MapMode = "FlatFace"
sketch5.AttachmentOffset = App.Placement(V(0, 0, -5), App.Rotation())
sketch5.addGeometry(Part.Circle(V(-72.3, 47.5, 0), V(0, 0, 1), 3.2), False)
sketch5.addGeometry(Part.Circle(V(-72.3, -47.5, 0), V(0, 0, 1), 3.2), False)
sketch5.addGeometry(Part.Circle(V(72.3, 47.5, 0), V(0, 0, 1), 3.2), False)
sketch5.addGeometry(Part.Circle(V(72.3, -47.5, 0), V(0, 0, 1), 3.2), False)
sketch5.addConstraint(Sketcher.Constraint("Equal", 0, 1))
sketch5.addConstraint(Sketcher.Constraint("Equal", 1, 2))
sketch5.addConstraint(Sketcher.Constraint("Equal", 2, 3))
sketch5.addConstraint(Sketcher.Constraint("Symmetric", 1, 3, 2, 3, -1, 1))
sketch5.addConstraint(Sketcher.Constraint("Symmetric", 0, 3, 3, 3, -1, 1))
sketch5.addConstraint(Sketcher.Constraint("Symmetric", 0, 3, 2, 3, -2))
sketch5.addConstraint(Sketcher.Constraint("Diameter", 0, 6.5))
sketch5.addConstraint(Sketcher.Constraint("DistanceY", 1, 3, 0, 3, 95.0))
sketch5.addConstraint(Sketcher.Constraint("DistanceX", 0, 3, -1, 1, 72.28462))
pocket3 = doc.addObject("PartDesign::Pocket", "Pocket002")
body.addObject(pocket3)
pocket3.Profile = sketch5
pocket3.Type = "ThroughAll"

doc.recompute()
